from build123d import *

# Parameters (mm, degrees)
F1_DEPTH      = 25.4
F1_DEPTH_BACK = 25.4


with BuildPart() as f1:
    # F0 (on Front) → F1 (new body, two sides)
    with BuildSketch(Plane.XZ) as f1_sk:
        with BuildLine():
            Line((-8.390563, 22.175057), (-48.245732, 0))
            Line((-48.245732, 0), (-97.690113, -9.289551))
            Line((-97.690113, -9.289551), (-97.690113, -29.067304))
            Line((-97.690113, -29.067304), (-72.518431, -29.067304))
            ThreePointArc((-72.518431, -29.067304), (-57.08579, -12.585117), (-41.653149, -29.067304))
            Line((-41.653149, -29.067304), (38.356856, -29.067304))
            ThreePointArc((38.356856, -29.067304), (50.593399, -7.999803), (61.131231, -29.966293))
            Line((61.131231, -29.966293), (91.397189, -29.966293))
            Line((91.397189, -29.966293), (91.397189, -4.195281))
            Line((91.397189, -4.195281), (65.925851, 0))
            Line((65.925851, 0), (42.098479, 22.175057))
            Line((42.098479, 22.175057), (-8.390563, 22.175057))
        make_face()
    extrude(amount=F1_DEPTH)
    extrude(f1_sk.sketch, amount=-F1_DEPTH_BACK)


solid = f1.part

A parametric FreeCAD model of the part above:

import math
import FreeCAD as App
import Part
import Sketcher

V = App.Vector
Q = App.Units.Quantity

doc = App.newDocument("Part")
params = doc.addObject("Spreadsheet::Sheet", "Params")
for row, (alias, value) in enumerate([
    ("sketch1_width", "3.1500002 in"),
    ("pad1_length", "1 in"),
    ("pad1_length2", "1 in"),
], start=1):
    params.set(f"A{row}", alias)
    params.set(f"B{row}", "=" + value)
    params.setAlias(f"B{row}", alias)

body = doc.addObject("PartDesign::Body", "Body")

sketch1 = body.newObject("Sketcher::SketchObject", "Sketch")
sketch1.AttachmentSupport = (doc.getObject("XZ_Plane"), [""])
sketch1.MapMode = "FlatFace"
sketch1.addGeometry([
    Part.LineSegment(V(-8, 22, 0), V(-48, 0, 0)),
    Part.LineSegment(V(-48, 0, 0), V(-98, -9, 0)),
    Part.LineSegment(V(-98, -9, 0), V(-98, -29, 0)),
    Part.LineSegment(V(-98, -29, 0), V(-73, -29, 0)),
    Part.ArcOfCircle(Part.Circle(V(-57, -28, 0), V(0, 0, 1), 15), math.radians(-4), math.radians(184)),
    Part.LineSegment(V(-42, -29, 0), V(38, -29, 0)),
    Part.ArcOfCircle(Part.Circle(V(50, -22, 0), V(0, 0, 1), 14), math.radians(-36), math.radians(212)),
    Part.LineSegment(V(61, -30, 0), V(91, -30, 0)),
    Part.LineSegment(V(91, -30, 0), V(91, -4, 0)),
    Part.LineSegment(V(91, -4, 0), V(66, 0, 0)),
    Part.LineSegment(V(66, 0, 0), V(42, 22, 0)),
    Part.LineSegment(V(42, 22, 0), V(-8, 22, 0)),
], False)
sketch1.addConstraint([
    Sketcher.Constraint("Coincident", 0, 2, 1, 1),
    Sketcher.Constraint("Coincident", 1, 2, 2, 1),
    Sketcher.Constraint("Coincident", 2, 2, 3, 1),
    Sketcher.Constraint("Coincident", 3, 2, 4, 2),
    Sketcher.Constraint("Coincident", 4, 1, 5, 1),
    Sketcher.Constraint("Coincident", 5, 2, 6, 2),
    Sketcher.Constraint("Coincident", 6, 1, 7, 1),
    Sketcher.Constraint("Coincident", 7, 2, 8, 1),
    Sketcher.Constraint("Coincident", 8, 2, 9, 1),
    Sketcher.Constraint("Coincident", 9, 2, 10, 1),
    Sketcher.Constraint("Coincident", 10, 2, 11, 1),
    Sketcher.Constraint("Coincident", 11, 2, 0, 1),
    Sketcher.Constraint("Vertical", 2),
    Sketcher.Constraint("Horizontal", 3),
    Sketcher.Constraint("Horizontal", 5),
    Sketcher.Constraint("Horizontal", 7),
    Sketcher.Constraint("Vertical", 8),
    Sketcher.Constraint("Horizontal", 11),
    Sketcher.Constraint("PointOnObject", 0, 2, -1),
    Sketcher.Constraint("PointOnObject", 9, 2, -1),
    Sketcher.Constraint("Horizontal", 3, 2, 4, 1),
    Sketcher.Constraint("DistanceX", 5, 1, 5, 2, Q("3.1500002 in")),
    Sketcher.Constraint("Radius", 4, Q("0.6088999 in")),
    Sketcher.Constraint("Radius", 6, 13.782377),
    Sketcher.Constraint("DistanceX", 3, 1, 3, 2, 25.171682),
    Sketcher.Constraint("DistanceX", 11, 2, 11, 1, 50.489042),
    Sketcher.Constraint("DistanceY", 8, 1, 8, 2, 25.771012),
    Sketcher.Constraint("DistanceX", 3, 2, 0, 2, 24.272699),
    Sketcher.Constraint("DistanceX", 10, 2, 6, 3, 7.951302),
    Sketcher.Constraint("Distance", 9, 25.81452),
    Sketcher.Constraint("DistanceX", 7, 1, 7, 2, 30.265958),
    Sketcher.Constraint("DistanceY", 2, 2, 2, 1, 19.777753),
    Sketcher.Constraint("DistanceX", 4, 3, -1, 1, 57.08579),
    Sketcher.Constraint("DistanceX", -1, 1, 6, 3, 50.049781),
    Sketcher.Constraint("DistanceX", 0, 2, -1, 1, 48.245732),
    Sketcher.Constraint("DistanceY", 1, 2, -1, 1, 9.289551),
    Sketcher.Constraint("DistanceX", -1, 1, 6, 1, 61.131231),
    Sketcher.Constraint("DistanceY", 6, 3, 10, 2, 43.946512),
])
sketch1.setExpression("Constraints[21]", "Params.sketch1_width")
pad1 = body.newObject("PartDesign::Pad", "Pad")
pad1.Profile = sketch1
pad1.Type = "TwoLengths"
pad1.setExpression("Length", "Params.pad1_length")
pad1.setExpression("Length2", "Params.pad1_length2")

doc.recompute()
